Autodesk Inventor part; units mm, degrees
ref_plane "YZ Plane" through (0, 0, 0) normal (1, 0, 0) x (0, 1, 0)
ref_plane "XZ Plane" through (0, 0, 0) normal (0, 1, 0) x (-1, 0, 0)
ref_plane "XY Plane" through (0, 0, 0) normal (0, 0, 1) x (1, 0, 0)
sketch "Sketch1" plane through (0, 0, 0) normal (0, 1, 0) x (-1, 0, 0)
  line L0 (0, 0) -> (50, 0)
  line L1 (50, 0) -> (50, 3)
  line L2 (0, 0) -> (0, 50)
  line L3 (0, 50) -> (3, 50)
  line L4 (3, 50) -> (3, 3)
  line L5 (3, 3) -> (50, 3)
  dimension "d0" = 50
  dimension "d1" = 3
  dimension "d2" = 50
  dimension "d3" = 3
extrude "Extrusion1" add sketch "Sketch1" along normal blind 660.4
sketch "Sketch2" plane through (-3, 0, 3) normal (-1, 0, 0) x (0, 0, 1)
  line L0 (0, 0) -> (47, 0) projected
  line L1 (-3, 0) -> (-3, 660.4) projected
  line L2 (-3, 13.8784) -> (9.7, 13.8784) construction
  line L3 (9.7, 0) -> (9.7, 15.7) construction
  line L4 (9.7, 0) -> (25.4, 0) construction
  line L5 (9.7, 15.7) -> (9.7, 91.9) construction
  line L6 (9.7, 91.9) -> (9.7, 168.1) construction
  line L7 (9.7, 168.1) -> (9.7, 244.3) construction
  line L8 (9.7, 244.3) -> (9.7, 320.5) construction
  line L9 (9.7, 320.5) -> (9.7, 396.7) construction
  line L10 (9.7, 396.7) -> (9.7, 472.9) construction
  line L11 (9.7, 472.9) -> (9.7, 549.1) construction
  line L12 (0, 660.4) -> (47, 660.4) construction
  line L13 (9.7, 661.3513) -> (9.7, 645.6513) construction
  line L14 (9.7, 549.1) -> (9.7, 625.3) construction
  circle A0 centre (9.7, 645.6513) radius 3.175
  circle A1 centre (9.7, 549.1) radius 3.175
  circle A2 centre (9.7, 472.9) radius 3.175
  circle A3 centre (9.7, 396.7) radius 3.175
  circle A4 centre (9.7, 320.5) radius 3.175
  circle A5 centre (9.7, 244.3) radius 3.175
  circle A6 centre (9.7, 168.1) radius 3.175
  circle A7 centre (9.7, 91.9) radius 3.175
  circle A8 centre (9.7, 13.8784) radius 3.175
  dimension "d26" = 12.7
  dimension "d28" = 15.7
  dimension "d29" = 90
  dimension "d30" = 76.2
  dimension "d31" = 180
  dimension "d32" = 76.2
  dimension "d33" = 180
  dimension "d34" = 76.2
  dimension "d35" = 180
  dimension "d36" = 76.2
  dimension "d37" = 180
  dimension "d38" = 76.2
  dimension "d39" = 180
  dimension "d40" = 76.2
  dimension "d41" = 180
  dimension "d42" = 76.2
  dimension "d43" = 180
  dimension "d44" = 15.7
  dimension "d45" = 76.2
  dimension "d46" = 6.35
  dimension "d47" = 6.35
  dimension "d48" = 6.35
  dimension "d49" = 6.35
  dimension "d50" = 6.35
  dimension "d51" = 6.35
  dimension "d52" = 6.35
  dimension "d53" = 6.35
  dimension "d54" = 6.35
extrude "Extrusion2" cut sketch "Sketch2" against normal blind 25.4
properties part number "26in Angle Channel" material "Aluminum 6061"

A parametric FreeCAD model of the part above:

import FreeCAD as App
import Part
import Sketcher
Q = App.Units.Quantity


def add_polygon(sketch, points):
    """Adds a closed chain of lines whose ends are joined by coincident constraints."""
    first, n = sketch.GeometryCount, len(points)
    for a, b in zip(points, points[1:] + points[:1]):
        sketch.addGeometry(Part.LineSegment(App.Vector(*a, 0), App.Vector(*b, 0)), False)
    for i in range(n):
        sketch.addConstraint(Sketcher.Constraint("Coincident", first + i, 2, first + (i + 1) % n, 1))

doc = App.newDocument("Part")
body = doc.addObject("PartDesign::Body", "Body")

# Sketch on XZ plane
sketch1 = body.newObject("Sketcher::SketchObject", "Sketch")
sketch1.AttachmentSupport = (doc.getObject("XZ_Plane"), [""])
sketch1.MapMode = "FlatFace"
add_polygon(sketch1, [(0, 50), (0, 0), (-50, 0), (-50, 3), (-3, 3), (-3, 50)])  # lines 0-5
sketch1.addConstraint(Sketcher.Constraint("Vertical", 0))
sketch1.addConstraint(Sketcher.Constraint("Horizontal", 1))
sketch1.addConstraint(Sketcher.Constraint("Vertical", 2))
sketch1.addConstraint(Sketcher.Constraint("Horizontal", 3))
sketch1.addConstraint(Sketcher.Constraint("Vertical", 4))
sketch1.addConstraint(Sketcher.Constraint("Horizontal", 5))
sketch1.addConstraint(Sketcher.Constraint("Coincident", 0, 2, -1, 1))
sketch1.addConstraint(Sketcher.Constraint("Equal", 1, 0))
sketch1.addConstraint(Sketcher.Constraint("Equal", 5, 2))
sketch1.addConstraint(Sketcher.Constraint("DistanceX", 1, 2, 1, 1, Q("1.9685 in")))
sketch1.addConstraint(Sketcher.Constraint("DistanceX", 5, 1, 5, 2, Q("0.1181 in")))
pad1 = body.newObject("PartDesign::Pad", "Pad")
pad1.Profile = sketch1
pad1.Length = Q("26 in")
pad1.Reversed = True

# Sketch on YZ plane
sketch2 = body.newObject("Sketcher::SketchObject", "Sketch001")
sketch2.AttachmentSupport = (doc.getObject("YZ_Plane"), [""])
sketch2.MapMode = "FlatFace"
sketch2.AttachmentOffset = App.Placement(App.Vector(0, 0, -0.1181102 * 25.4), App.Rotation())
sketch2.addGeometry(Part.Circle(App.Vector(645.6513, 12.7, 0), App.Vector(0, 0, 1), 3.175), False)
sketch2.addGeometry(Part.Circle(App.Vector(549.1, 12.7, 0), App.Vector(0, 0, 1), 3.175), False)
sketch2.addGeometry(Part.Circle(App.Vector(472.9, 12.7, 0), App.Vector(0, 0, 1), 3.175), False)
sketch2.addGeometry(Part.Circle(App.Vector(396.7, 12.7, 0), App.Vector(0, 0, 1), 3.175), False)
sketch2.addGeometry(Part.Circle(App.Vector(320.5, 12.7, 0), App.Vector(0, 0, 1), 3.175), False)
sketch2.addGeometry(Part.Circle(App.Vector(244.3, 12.7, 0), App.Vector(0, 0, 1), 3.175), False)
sketch2.addGeometry(Part.Circle(App.Vector(168.1, 12.7, 0), App.Vector(0, 0, 1), 3.175), False)
sketch2.addGeometry(Part.Circle(App.Vector(91.9, 12.7, 0), App.Vector(0, 0, 1), 3.175), False)
sketch2.addGeometry(Part.Circle(App.Vector(13.8784, 12.7, 0), App.Vector(0, 0, 1), 3.175), False)
sketch2.addConstraint(Sketcher.Constraint("Equal", 0, 1))
sketch2.addConstraint(Sketcher.Constraint("Equal", 1, 2))
sketch2.addConstraint(Sketcher.Constraint("Equal", 2, 3))
sketch2.addConstraint(Sketcher.Constraint("Equal", 3, 4))
sketch2.addConstraint(Sketcher.Constraint("Equal", 4, 5))
sketch2.addConstraint(Sketcher.Constraint("Equal", 5, 6))
sketch2.addConstraint(Sketcher.Constraint("Equal", 6, 7))
sketch2.addConstraint(Sketcher.Constraint("Equal", 7, 8))
sketch2.addConstraint(Sketcher.Constraint("Horizontal", 0, 3, 1, 3))
sketch2.addConstraint(Sketcher.Constraint("Horizontal", 1, 3, 2, 3))
sketch2.addConstraint(Sketcher.Constraint("Horizontal", 2, 3, 3, 3))
sketch2.addConstraint(Sketcher.Constraint("Horizontal", 3, 3, 4, 3))
sketch2.addConstraint(Sketcher.Constraint("Horizontal", 4, 3, 5, 3))
sketch2.addConstraint(Sketcher.Constraint("Horizontal", 5, 3, 6, 3))
sketch2.addConstraint(Sketcher.Constraint("Horizontal", 6, 3, 7, 3))
sketch2.addConstraint(Sketcher.Constraint("Horizontal", 7, 3, 8, 3))
sketch2.addConstraint(Sketcher.Constraint("Diameter", 0, Q("0.25 in")))
sketch2.addConstraint(Sketcher.Constraint("DistanceX", 2, 3, 1, 3, Q("3 in")))
sketch2.addConstraint(Sketcher.Constraint("DistanceX", 3, 3, 2, 3, Q("3 in")))
sketch2.addConstraint(Sketcher.Constraint("DistanceX", 4, 3, 3, 3, Q("3 in")))
sketch2.addConstraint(Sketcher.Constraint("DistanceX", 5, 3, 4, 3, Q("3 in")))
sketch2.addConstraint(Sketcher.Constraint("DistanceX", 6, 3, 5, 3, Q("3 in")))
sketch2.addConstraint(Sketcher.Constraint("DistanceX", 7, 3, 6, 3, Q("3 in")))
sketch2.addConstraint(Sketcher.Constraint("DistanceY", -1, 1, 0, 3, Q("0.5 in")))
sketch2.addConstraint(Sketcher.Constraint("DistanceX", -1, 1, 1, 3, Q("21.6181 in")))
sketch2.addConstraint(Sketcher.Constraint("DistanceX", -1, 1, 8, 3, Q("0.5464 in")))
sketch2.addConstraint(Sketcher.Constraint("DistanceX", -1, 1, 0, 3, 645.6513))
pocket1 = body.newObject("PartDesign::Pocket", "Pocket")
pocket1.Profile = sketch2
pocket1.Length = Q("1 in")
pocket1.Reversed = True

doc.recompute()
